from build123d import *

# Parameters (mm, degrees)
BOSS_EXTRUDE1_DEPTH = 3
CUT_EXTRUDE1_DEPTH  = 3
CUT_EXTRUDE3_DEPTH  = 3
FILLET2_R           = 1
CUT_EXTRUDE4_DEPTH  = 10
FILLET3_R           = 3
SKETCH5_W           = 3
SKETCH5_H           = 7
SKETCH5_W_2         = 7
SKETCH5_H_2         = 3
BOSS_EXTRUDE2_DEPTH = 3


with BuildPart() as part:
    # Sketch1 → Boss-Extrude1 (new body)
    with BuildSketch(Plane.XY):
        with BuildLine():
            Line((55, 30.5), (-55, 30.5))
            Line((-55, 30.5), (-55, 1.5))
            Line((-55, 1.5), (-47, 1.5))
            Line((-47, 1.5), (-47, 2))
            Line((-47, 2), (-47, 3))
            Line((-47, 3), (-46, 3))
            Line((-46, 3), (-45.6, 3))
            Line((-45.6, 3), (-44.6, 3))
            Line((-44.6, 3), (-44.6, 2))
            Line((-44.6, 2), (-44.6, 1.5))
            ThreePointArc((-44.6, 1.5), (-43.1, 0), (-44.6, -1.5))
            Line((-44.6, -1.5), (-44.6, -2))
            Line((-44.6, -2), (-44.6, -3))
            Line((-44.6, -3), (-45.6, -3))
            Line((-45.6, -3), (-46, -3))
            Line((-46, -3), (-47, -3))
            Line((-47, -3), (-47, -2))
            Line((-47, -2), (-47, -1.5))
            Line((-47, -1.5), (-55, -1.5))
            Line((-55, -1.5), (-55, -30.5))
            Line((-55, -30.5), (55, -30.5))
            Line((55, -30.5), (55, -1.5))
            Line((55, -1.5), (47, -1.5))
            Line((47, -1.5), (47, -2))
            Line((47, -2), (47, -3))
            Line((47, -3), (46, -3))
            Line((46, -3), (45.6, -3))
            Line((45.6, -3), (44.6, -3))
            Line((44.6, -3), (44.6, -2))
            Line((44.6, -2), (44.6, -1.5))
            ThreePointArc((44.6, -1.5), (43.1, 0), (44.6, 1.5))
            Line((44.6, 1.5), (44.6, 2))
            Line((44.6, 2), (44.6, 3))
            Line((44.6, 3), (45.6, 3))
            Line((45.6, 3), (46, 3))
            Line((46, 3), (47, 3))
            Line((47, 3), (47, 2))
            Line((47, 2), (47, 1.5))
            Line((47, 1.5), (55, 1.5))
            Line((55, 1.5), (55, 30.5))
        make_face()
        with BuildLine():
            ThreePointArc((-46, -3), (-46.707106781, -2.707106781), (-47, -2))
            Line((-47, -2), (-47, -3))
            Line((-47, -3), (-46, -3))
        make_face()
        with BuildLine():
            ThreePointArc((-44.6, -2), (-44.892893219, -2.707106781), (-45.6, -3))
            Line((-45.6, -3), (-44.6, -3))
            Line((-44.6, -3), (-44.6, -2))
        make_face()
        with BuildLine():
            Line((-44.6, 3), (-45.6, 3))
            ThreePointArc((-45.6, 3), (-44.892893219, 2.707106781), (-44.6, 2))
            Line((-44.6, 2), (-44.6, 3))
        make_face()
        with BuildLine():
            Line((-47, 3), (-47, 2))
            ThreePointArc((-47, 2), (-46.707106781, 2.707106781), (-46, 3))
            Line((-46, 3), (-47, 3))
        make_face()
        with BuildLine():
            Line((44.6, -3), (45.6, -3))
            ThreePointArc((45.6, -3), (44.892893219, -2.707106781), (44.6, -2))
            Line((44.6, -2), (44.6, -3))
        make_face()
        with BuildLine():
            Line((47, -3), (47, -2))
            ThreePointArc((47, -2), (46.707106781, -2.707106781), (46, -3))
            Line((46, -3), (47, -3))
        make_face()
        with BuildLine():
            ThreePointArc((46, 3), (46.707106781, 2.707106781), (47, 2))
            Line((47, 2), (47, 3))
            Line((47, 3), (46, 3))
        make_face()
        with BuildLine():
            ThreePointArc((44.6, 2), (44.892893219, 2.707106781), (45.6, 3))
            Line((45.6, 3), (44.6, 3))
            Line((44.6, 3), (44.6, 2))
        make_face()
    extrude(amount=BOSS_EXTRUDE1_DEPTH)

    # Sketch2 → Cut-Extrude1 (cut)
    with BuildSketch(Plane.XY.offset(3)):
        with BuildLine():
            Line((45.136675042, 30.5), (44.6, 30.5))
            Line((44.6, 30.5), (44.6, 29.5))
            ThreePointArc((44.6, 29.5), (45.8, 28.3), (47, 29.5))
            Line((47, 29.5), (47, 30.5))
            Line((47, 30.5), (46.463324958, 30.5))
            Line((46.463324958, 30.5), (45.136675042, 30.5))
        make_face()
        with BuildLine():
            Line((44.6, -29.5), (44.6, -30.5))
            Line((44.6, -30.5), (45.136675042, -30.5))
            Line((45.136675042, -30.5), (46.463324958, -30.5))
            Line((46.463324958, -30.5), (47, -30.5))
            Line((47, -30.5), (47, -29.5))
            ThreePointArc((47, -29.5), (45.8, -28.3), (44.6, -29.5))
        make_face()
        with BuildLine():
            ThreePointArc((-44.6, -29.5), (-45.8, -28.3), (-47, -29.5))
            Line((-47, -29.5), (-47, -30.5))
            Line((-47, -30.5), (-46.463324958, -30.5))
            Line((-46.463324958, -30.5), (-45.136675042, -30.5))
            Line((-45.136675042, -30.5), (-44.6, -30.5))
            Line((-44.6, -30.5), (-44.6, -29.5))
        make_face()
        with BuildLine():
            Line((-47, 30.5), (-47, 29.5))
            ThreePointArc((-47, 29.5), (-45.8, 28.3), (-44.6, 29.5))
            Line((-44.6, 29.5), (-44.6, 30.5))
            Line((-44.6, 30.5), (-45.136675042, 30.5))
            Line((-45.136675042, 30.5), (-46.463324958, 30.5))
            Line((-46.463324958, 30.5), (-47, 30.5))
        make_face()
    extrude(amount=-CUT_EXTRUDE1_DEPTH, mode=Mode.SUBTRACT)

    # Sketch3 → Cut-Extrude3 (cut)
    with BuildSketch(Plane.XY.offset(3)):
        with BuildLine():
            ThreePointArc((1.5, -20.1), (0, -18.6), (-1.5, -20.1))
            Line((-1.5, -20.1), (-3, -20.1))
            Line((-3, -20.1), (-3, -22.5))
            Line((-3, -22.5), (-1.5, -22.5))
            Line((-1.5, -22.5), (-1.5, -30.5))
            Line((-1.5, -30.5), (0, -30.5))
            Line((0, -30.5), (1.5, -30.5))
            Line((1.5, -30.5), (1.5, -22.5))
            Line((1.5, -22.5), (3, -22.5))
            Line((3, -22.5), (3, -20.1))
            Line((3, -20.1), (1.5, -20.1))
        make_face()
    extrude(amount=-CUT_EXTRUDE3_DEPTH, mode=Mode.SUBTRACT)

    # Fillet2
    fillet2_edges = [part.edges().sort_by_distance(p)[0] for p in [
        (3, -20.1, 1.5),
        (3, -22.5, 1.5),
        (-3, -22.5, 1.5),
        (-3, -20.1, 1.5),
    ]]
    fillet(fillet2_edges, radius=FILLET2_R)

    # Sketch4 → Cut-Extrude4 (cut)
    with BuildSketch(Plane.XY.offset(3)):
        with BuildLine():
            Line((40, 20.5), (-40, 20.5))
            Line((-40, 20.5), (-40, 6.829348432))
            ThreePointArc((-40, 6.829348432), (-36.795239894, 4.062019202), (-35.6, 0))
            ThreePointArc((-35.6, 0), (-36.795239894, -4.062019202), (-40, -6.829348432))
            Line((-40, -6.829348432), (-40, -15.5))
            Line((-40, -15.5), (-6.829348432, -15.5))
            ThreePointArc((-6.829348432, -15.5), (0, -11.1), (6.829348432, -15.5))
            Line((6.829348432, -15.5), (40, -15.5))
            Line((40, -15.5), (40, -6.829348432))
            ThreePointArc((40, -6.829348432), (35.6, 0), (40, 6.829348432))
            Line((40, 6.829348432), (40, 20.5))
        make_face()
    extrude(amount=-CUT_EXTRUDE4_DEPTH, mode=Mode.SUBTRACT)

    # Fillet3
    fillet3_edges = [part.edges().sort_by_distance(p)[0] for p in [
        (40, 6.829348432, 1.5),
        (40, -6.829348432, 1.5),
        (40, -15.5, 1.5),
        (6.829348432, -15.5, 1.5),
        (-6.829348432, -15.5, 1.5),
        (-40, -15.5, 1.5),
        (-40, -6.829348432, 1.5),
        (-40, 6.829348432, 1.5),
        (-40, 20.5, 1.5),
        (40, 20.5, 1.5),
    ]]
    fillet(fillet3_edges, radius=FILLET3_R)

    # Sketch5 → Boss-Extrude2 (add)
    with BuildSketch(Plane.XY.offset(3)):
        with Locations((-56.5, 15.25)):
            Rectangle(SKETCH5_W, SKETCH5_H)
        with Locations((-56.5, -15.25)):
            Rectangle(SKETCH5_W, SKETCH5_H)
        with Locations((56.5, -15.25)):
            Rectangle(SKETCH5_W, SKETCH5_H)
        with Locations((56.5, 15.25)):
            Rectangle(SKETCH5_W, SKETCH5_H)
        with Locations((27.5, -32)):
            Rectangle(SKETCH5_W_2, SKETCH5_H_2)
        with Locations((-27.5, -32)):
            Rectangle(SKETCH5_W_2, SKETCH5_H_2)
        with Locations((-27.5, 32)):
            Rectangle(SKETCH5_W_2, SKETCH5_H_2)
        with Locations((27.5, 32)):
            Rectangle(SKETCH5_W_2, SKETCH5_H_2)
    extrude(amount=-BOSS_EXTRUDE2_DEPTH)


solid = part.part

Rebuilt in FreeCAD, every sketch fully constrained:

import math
import FreeCAD as App
import Part
import Sketcher
from FreeCAD import Vector


def edges_at(feature, points):
    """Names of the edges that pass closest to the given points."""
    edges = feature.Shape.Edges
    near = lambda p: min(range(len(edges)), key=lambda i: edges[i].distToShape(Part.Vertex(*p))[0])
    return sorted({f"Edge{near(p) + 1}" for p in points})


def add_polygon(sketch, points):
    """Adds a closed chain of lines whose ends are joined by coincident constraints."""
    first, n = sketch.GeometryCount, len(points)
    for a, b in zip(points, points[1:] + points[:1]):
        sketch.addGeometry(Part.LineSegment(App.Vector(*a, 0), App.Vector(*b, 0)), False)
    for i in range(n):
        sketch.addConstraint(Sketcher.Constraint("Coincident", first + i, 2, first + (i + 1) % n, 1))

doc = App.newDocument("Part")
params = doc.addObject("Spreadsheet::Sheet", "Params")
for row, (alias, value) in enumerate([
    ("sketch1_radius", "1 mm"),
    ("sketch1_radius2", "1.5 mm"),
    ("sketch1_width", "110 mm"),
    ("sketch1_width2", "8 mm"),
    ("sketch1_height", "29 mm"),
    ("pad1_length", "3 mm"),
    ("sketch2_radius", "1.2 mm"),
    ("sketch2_height", "1 mm"),
    ("pocket1_length", "3 mm"),
    ("sketch3_radius", "1.5 mm"),
    ("sketch3_height", "8 mm"),
    ("sketch3_width", "1.5 mm"),
    ("sketch3_height2", "2.4 mm"),
    ("pocket2_length", "3 mm"),
    ("fillet_radius", "1 mm"),
    ("sketch4_radius", "7.5 mm"),
    ("sketch4_width", "80 mm"),
    ("pocket3_length", "10 mm"),
    ("fillet2_radius", "3 mm"),
    ("sketch5_width", "3 mm"),
    ("sketch5_width2", "7 mm"),
    ("pad2_length", "3 mm"),
], start=1):
    params.set(f"A{row}", alias)
    params.set(f"B{row}", "=" + value)
    params.setAlias(f"B{row}", alias)

body = doc.addObject("PartDesign::Body", "Body")

sketch1 = body.newObject("Sketcher::SketchObject", "Sketch")
sketch1.AttachmentSupport = (doc.getObject("XY_Plane"), [""])
sketch1.MapMode = "FlatFace"
sketch1.addGeometry([
    Part.LineSegment(Vector(55, 30.5, 0), Vector(-55, 30.5, 0)),
    Part.LineSegment(Vector(-55, 30.5, 0), Vector(-55, 1.5, 0)),
    Part.LineSegment(Vector(-55, 1.5, 0), Vector(-47, 1.5, 0)),
    Part.LineSegment(Vector(-47, 1.5, 0), Vector(-47, 2, 0)),
    Part.ArcOfCircle(Part.Circle(Vector(-46, 2, 0), Vector(0, 0, 1), 1), math.radians(90), math.radians(180)),
    Part.LineSegment(Vector(-46, 3, 0), Vector(-45.6, 3, 0)),
    Part.ArcOfCircle(Part.Circle(Vector(-45.6, 2, 0), Vector(0, 0, 1), 1), math.radians(0), math.radians(90)),
    Part.LineSegment(Vector(-44.6, 2, 0), Vector(-44.6, 1.5, 0)),
    Part.ArcOfCircle(Part.Circle(Vector(-44.6, 0, 0), Vector(0, 0, 1), 1.5), math.radians(-90), math.radians(90)),
    Part.LineSegment(Vector(-44.6, -1.5, 0), Vector(-44.6, -2, 0)),
    Part.ArcOfCircle(Part.Circle(Vector(-45.6, -2, 0), Vector(0, 0, 1), 1), math.radians(-90), math.radians(0)),
    Part.LineSegment(Vector(-45.6, -3, 0), Vector(-46, -3, 0)),
    Part.ArcOfCircle(Part.Circle(Vector(-46, -2, 0), Vector(0, 0, 1), 1), math.radians(-180), math.radians(-90)),
    Part.LineSegment(Vector(-47, -2, 0), Vector(-47, -1.5, 0)),
    Part.LineSegment(Vector(-47, -1.5, 0), Vector(-55, -1.5, 0)),
    Part.LineSegment(Vector(-55, -1.5, 0), Vector(-55, -30.5, 0)),
    Part.LineSegment(Vector(-55, -30.5, 0), Vector(55, -30.5, 0)),
    Part.LineSegment(Vector(55, -30.5, 0), Vector(55, -1.5, 0)),
    Part.LineSegment(Vector(55, -1.5, 0), Vector(47, -1.5, 0)),
    Part.LineSegment(Vector(47, -1.5, 0), Vector(47, -2, 0)),
    Part.ArcOfCircle(Part.Circle(Vector(46, -2, 0), Vector(0, 0, 1), 1), math.radians(-90), math.radians(0)),
    Part.LineSegment(Vector(46, -3, 0), Vector(45.6, -3, 0)),
    Part.ArcOfCircle(Part.Circle(Vector(45.6, -2, 0), Vector(0, 0, 1), 1), math.radians(-180), math.radians(-90)),
    Part.LineSegment(Vector(44.6, -2, 0), Vector(44.6, -1.5, 0)),
    Part.ArcOfCircle(Part.Circle(Vector(44.6, 0, 0), Vector(0, 0, 1), 1.5), math.radians(90), math.radians(270)),
    Part.LineSegment(Vector(44.6, 1.5, 0), Vector(44.6, 2, 0)),
    Part.ArcOfCircle(Part.Circle(Vector(45.6, 2, 0), Vector(0, 0, 1), 1), math.radians(90), math.radians(180)),
    Part.LineSegment(Vector(45.6, 3, 0), Vector(46, 3, 0)),
    Part.ArcOfCircle(Part.Circle(Vector(46, 2, 0), Vector(0, 0, 1), 1), math.radians(0), math.radians(90)),
    Part.LineSegment(Vector(47, 2, 0), Vector(47, 1.5, 0)),
    Part.LineSegment(Vector(47, 1.5, 0), Vector(55, 1.5, 0)),
    Part.LineSegment(Vector(55, 1.5, 0), Vector(55, 30.5, 0)),
], False)
sketch1.addConstraint([
    Sketcher.Constraint("Coincident", 0, 2, 1, 1),
    Sketcher.Constraint("Coincident", 1, 2, 2, 1),
    Sketcher.Constraint("Coincident", 2, 2, 3, 1),
    Sketcher.Constraint("Tangent", 3, 2, 4, 2),
    Sketcher.Constraint("Tangent", 4, 1, 5, 1),
    Sketcher.Constraint("Tangent", 5, 2, 6, 2),
    Sketcher.Constraint("Tangent", 6, 1, 7, 1),
    Sketcher.Constraint("Coincident", 7, 2, 8, 2),
    Sketcher.Constraint("Coincident", 8, 1, 9, 1),
    Sketcher.Constraint("Tangent", 9, 2, 10, 2),
    Sketcher.Constraint("Tangent", 10, 1, 11, 1),
    Sketcher.Constraint("Tangent", 11, 2, 12, 2),
    Sketcher.Constraint("Tangent", 12, 1, 13, 1),
    Sketcher.Constraint("Coincident", 13, 2, 14, 1),
    Sketcher.Constraint("Coincident", 14, 2, 15, 1),
    Sketcher.Constraint("Coincident", 15, 2, 16, 1),
    Sketcher.Constraint("Coincident", 16, 2, 17, 1),
    Sketcher.Constraint("Coincident", 17, 2, 18, 1),
    Sketcher.Constraint("Coincident", 18, 2, 19, 1),
    Sketcher.Constraint("Tangent", 19, 2, 20, 2),
    Sketcher.Constraint("Tangent", 20, 1, 21, 1),
    Sketcher.Constraint("Tangent", 21, 2, 22, 2),
    Sketcher.Constraint("Tangent", 22, 1, 23, 1),
    Sketcher.Constraint("Coincident", 23, 2, 24, 2),
    Sketcher.Constraint("Coincident", 24, 1, 25, 1),
    Sketcher.Constraint("Tangent", 25, 2, 26, 2),
    Sketcher.Constraint("Tangent", 26, 1, 27, 1),
    Sketcher.Constraint("Tangent", 27, 2, 28, 2),
    Sketcher.Constraint("Tangent", 28, 1, 29, 1),
    Sketcher.Constraint("Coincident", 29, 2, 30, 1),
    Sketcher.Constraint("Coincident", 30, 2, 31, 1),
    Sketcher.Constraint("Coincident", 31, 2, 0, 1),
    Sketcher.Constraint("Horizontal", 0),
    Sketcher.Constraint("Vertical", 1),
    Sketcher.Constraint("Horizontal", 2),
    Sketcher.Constraint("Vertical", 3),
    Sketcher.Constraint("Horizontal", 5),
    Sketcher.Constraint("Vertical", 7),
    Sketcher.Constraint("Vertical", 9),
    Sketcher.Constraint("Horizontal", 11),
    Sketcher.Constraint("Vertical", 13),
    Sketcher.Constraint("Horizontal", 14),
    Sketcher.Constraint("Vertical", 15),
    Sketcher.Constraint("Horizontal", 16),
    Sketcher.Constraint("Vertical", 17),
    Sketcher.Constraint("Horizontal", 18),
    Sketcher.Constraint("Vertical", 19),
    Sketcher.Constraint("Horizontal", 21),
    Sketcher.Constraint("Vertical", 23),
    Sketcher.Constraint("Vertical", 25),
    Sketcher.Constraint("Horizontal", 27),
    Sketcher.Constraint("Vertical", 29),
    Sketcher.Constraint("Horizontal", 30),
    Sketcher.Constraint("Vertical", 31),
    Sketcher.Constraint("Equal", 4, 6),
    Sketcher.Constraint("Equal", 6, 10),
    Sketcher.Constraint("Equal", 10, 12),
    Sketcher.Constraint("Equal", 12, 20),
    Sketcher.Constraint("Equal", 20, 22),
    Sketcher.Constraint("Equal", 8, 24),
    Sketcher.Constraint("Equal", 22, 26),
    Sketcher.Constraint("Equal", 26, 28),
    Sketcher.Constraint("Symmetric", 4, 3, 20, 3, -1, 1),
    Sketcher.Constraint("Symmetric", 8, 3, 24, 3, -1, 1),
    Sketcher.Constraint("Symmetric", 10, 3, 26, 3, -1, 1),
    Sketcher.Constraint("Symmetric", 0, 2, 16, 2, -1, 1),
    Sketcher.Constraint("Symmetric", 13, 2, 29, 2, -1, 1),
    Sketcher.Constraint("Symmetric", 12, 3, 20, 3, -2),
    Sketcher.Constraint("Symmetric", 14, 2, 17, 2, -2),
    Sketcher.Constraint("Symmetric", 8, 1, 23, 2, -2),
    Sketcher.Constraint("Symmetric", 1, 2, 30, 2, -2),
    Sketcher.Constraint("Horizontal", 2, 2, 7, 2),
    Sketcher.Constraint("Vertical", 6, 3, 10, 3),
    Sketcher.Constraint("Vertical", 8, 3, 6, 1),
    Sketcher.Constraint("Radius", 4, 1.0),
    Sketcher.Constraint("Radius", 8, 1.5),
    Sketcher.Constraint("DistanceX", 0, 2, 0, 1, 110.0),
    Sketcher.Constraint("DistanceX", 2, 1, 2, 2, 8.0),
    Sketcher.Constraint("DistanceY", 1, 2, 1, 1, 29.0),
    Sketcher.Constraint("DistanceX", 5, 1, 5, 2, 0.4),
    Sketcher.Constraint("DistanceY", 3, 1, 3, 2, 0.5),
])
sketch1.setExpression("Constraints[74]", "Params.sketch1_radius")
sketch1.setExpression("Constraints[75]", "Params.sketch1_radius2")
sketch1.setExpression("Constraints[76]", "Params.sketch1_width")
sketch1.setExpression("Constraints[77]", "Params.sketch1_width2")
sketch1.setExpression("Constraints[78]", "Params.sketch1_height")
pad1 = body.newObject("PartDesign::Pad", "Pad")
pad1.Profile = sketch1
pad1.setExpression("Length", "Params.pad1_length")

sketch2 = body.newObject("Sketcher::SketchObject", "Sketch001")
sketch2.AttachmentSupport = (doc.getObject("XY_Plane"), [""])
sketch2.MapMode = "FlatFace"
sketch2.AttachmentOffset = App.Placement(Vector(0, 0, 3), App.Rotation())
sketch2.addGeometry([
    Part.LineSegment(Vector(44.6, 30.5, 0), Vector(44.6, 29.5, 0)),
    Part.ArcOfCircle(Part.Circle(Vector(45.8, 29.5, 0), Vector(0, 0, 1), 1.2), math.radians(180), math.radians(360)),
    Part.LineSegment(Vector(47, 29.5, 0), Vector(47, 30.5, 0)),
    Part.LineSegment(Vector(47, 30.5, 0), Vector(44.6, 30.5, 0)),
    Part.LineSegment(Vector(44.6, -29.5, 0), Vector(44.6, -30.5, 0)),
    Part.LineSegment(Vector(44.6, -30.5, 0), Vector(47, -30.5, 0)),
    Part.LineSegment(Vector(47, -30.5, 0), Vector(47, -29.5, 0)),
    Part.ArcOfCircle(Part.Circle(Vector(45.8, -29.5, 0), Vector(0, 0, 1), 1.2), math.radians(0), math.radians(180)),
    Part.ArcOfCircle(Part.Circle(Vector(-45.8, -29.5, 0), Vector(0, 0, 1), 1.2), math.radians(0), math.radians(180)),
    Part.LineSegment(Vector(-47, -29.5, 0), Vector(-47, -30.5, 0)),
    Part.LineSegment(Vector(-47, -30.5, 0), Vector(-44.6, -30.5, 0)),
    Part.LineSegment(Vector(-44.6, -30.5, 0), Vector(-44.6, -29.5, 0)),
    Part.LineSegment(Vector(-47, 30.5, 0), Vector(-47, 29.5, 0)),
    Part.ArcOfCircle(Part.Circle(Vector(-45.8, 29.5, 0), Vector(0, 0, 1), 1.2), math.radians(180), math.radians(360)),
    Part.LineSegment(Vector(-44.6, 29.5, 0), Vector(-44.6, 30.5, 0)),
    Part.LineSegment(Vector(-44.6, 30.5, 0), Vector(-47, 30.5, 0)),
], False)
sketch2.addConstraint([
    Sketcher.Constraint("Tangent", 0, 2, 1, 1),
    Sketcher.Constraint("Tangent", 1, 2, 2, 1),
    Sketcher.Constraint("Coincident", 2, 2, 3, 1),
    Sketcher.Constraint("Coincident", 3, 2, 0, 1),
    Sketcher.Constraint("Coincident", 4, 2, 5, 1),
    Sketcher.Constraint("Coincident", 5, 2, 6, 1),
    Sketcher.Constraint("Tangent", 6, 2, 7, 1),
    Sketcher.Constraint("Tangent", 7, 2, 4, 1),
    Sketcher.Constraint("Tangent", 8, 2, 9, 1),
    Sketcher.Constraint("Coincident", 9, 2, 10, 1),
    Sketcher.Constraint("Coincident", 10, 2, 11, 1),
    Sketcher.Constraint("Tangent", 11, 2, 8, 1),
    Sketcher.Constraint("Tangent", 12, 2, 13, 1),
    Sketcher.Constraint("Tangent", 13, 2, 14, 1),
    Sketcher.Constraint("Coincident", 14, 2, 15, 1),
    Sketcher.Constraint("Coincident", 15, 2, 12, 1),
    Sketcher.Constraint("Vertical", 0),
    Sketcher.Constraint("Vertical", 2),
    Sketcher.Constraint("Horizontal", 3),
    Sketcher.Constraint("Vertical", 4),
    Sketcher.Constraint("Horizontal", 5),
    Sketcher.Constraint("Vertical", 6),
    Sketcher.Constraint("Vertical", 9),
    Sketcher.Constraint("Horizontal", 10),
    Sketcher.Constraint("Vertical", 11),
    Sketcher.Constraint("Vertical", 12),
    Sketcher.Constraint("Vertical", 14),
    Sketcher.Constraint("Horizontal", 15),
    Sketcher.Constraint("Equal", 1, 7),
    Sketcher.Constraint("Equal", 7, 8),
    Sketcher.Constraint("Equal", 8, 13),
    Sketcher.Constraint("Symmetric", 1, 3, 8, 3, -1, 1),
    Sketcher.Constraint("Symmetric", 7, 3, 13, 3, -1, 1),
    Sketcher.Constraint("Symmetric", 7, 3, 8, 3, -2),
    Sketcher.Constraint("Horizontal", 5, 2, 9, 2),
    Sketcher.Constraint("Horizontal", 3, 2, 14, 2),
    Sketcher.Constraint("Equal", 2, 4),
    Sketcher.Constraint("Radius", 1, 1.2),
    Sketcher.Constraint("DistanceY", 0, 2, 0, 1, 1.0),
    Sketcher.Constraint("DistanceX", -1, 1, 1, 2, 47.0),
    Sketcher.Constraint("DistanceY", 7, 3, 1, 3, 59.0),
])
sketch2.setExpression("Constraints[37]", "Params.sketch2_radius")
sketch2.setExpression("Constraints[38]", "Params.sketch2_height")
pocket1 = body.newObject("PartDesign::Pocket", "Pocket")
pocket1.Profile = sketch2
pocket1.setExpression("Length", "Params.pocket1_length")

sketch3 = body.newObject("Sketcher::SketchObject", "Sketch002")
sketch3.AttachmentSupport = (doc.getObject("XY_Plane"), [""])
sketch3.MapMode = "FlatFace"
sketch3.AttachmentOffset = App.Placement(Vector(0, 0, 3), App.Rotation())
sketch3.addGeometry([
    Part.ArcOfCircle(Part.Circle(Vector(0, -20.1, 0), Vector(0, 0, 1), 1.5), math.radians(0), math.radians(180)),
    Part.LineSegment(Vector(-1.5, -20.1, 0), Vector(-3, -20.1, 0)),
    Part.LineSegment(Vector(-3, -20.1, 0), Vector(-3, -22.5, 0)),
    Part.LineSegment(Vector(-3, -22.5, 0), Vector(-1.5, -22.5, 0)),
    Part.LineSegment(Vector(-1.5, -22.5, 0), Vector(-1.5, -30.5, 0)),
    Part.LineSegment(Vector(-1.5, -30.5, 0), Vector(1.5, -30.5, 0)),
    Part.LineSegment(Vector(1.5, -30.5, 0), Vector(1.5, -22.5, 0)),
    Part.LineSegment(Vector(1.5, -22.5, 0), Vector(3, -22.5, 0)),
    Part.LineSegment(Vector(3, -22.5, 0), Vector(3, -20.1, 0)),
    Part.LineSegment(Vector(3, -20.1, 0), Vector(1.5, -20.1, 0)),
], False)
sketch3.addConstraint([
    Sketcher.Constraint("Coincident", 0, 2, 1, 1),
    Sketcher.Constraint("Coincident", 1, 2, 2, 1),
    Sketcher.Constraint("Coincident", 2, 2, 3, 1),
    Sketcher.Constraint("Coincident", 3, 2, 4, 1),
    Sketcher.Constraint("Coincident", 4, 2, 5, 1),
    Sketcher.Constraint("Coincident", 5, 2, 6, 1),
    Sketcher.Constraint("Coincident", 6, 2, 7, 1),
    Sketcher.Constraint("Coincident", 7, 2, 8, 1),
    Sketcher.Constraint("Coincident", 8, 2, 9, 1),
    Sketcher.Constraint("Coincident", 9, 2, 0, 1),
    Sketcher.Constraint("Horizontal", 1),
    Sketcher.Constraint("Vertical", 2),
    Sketcher.Constraint("Horizontal", 3),
    Sketcher.Constraint("Vertical", 4),
    Sketcher.Constraint("Horizontal", 5),
    Sketcher.Constraint("Vertical", 6),
    Sketcher.Constraint("Horizontal", 7),
    Sketcher.Constraint("Vertical", 8),
    Sketcher.Constraint("Horizontal", 9),
    Sketcher.Constraint("Symmetric", 3, 2, 6, 2, -2),
    Sketcher.Constraint("Symmetric", 1, 2, 8, 2, -2),
    Sketcher.Constraint("PointOnObject", 0, 3, -2),
    Sketcher.Constraint("Vertical", 0, 2, 3, 2),
    Sketcher.Constraint("Radius", 0, 1.5),
    Sketcher.Constraint("DistanceY", 4, 2, 4, 1, 8.0),
    Sketcher.Constraint("DistanceX", 1, 2, 1, 1, 1.5),
    Sketcher.Constraint("DistanceY", 2, 2, 2, 1, 2.4),
    Sketcher.Constraint("DistanceY", 0, 3, -1, 1, 20.1),
    Sketcher.Constraint("DistanceY", 0, 2, -1, 1, 20.1),
])
sketch3.setExpression("Constraints[23]", "Params.sketch3_radius")
sketch3.setExpression("Constraints[24]", "Params.sketch3_height")
sketch3.setExpression("Constraints[25]", "Params.sketch3_width")
sketch3.setExpression("Constraints[26]", "Params.sketch3_height2")
pocket2 = body.newObject("PartDesign::Pocket", "Pocket001")
pocket2.Profile = sketch3
pocket2.setExpression("Length", "Params.pocket2_length")
doc.recompute()

fillet = body.newObject("PartDesign::Fillet", "Fillet")
fillet.Base = (pocket2, edges_at(pocket2, [
    (3, -20.1, 1.5),
    (3, -22.5, 1.5),
    (-3, -22.5, 1.5),
    (-3, -20.1, 1.5),
]))
fillet.setExpression("Radius", "Params.fillet_radius")

sketch4 = body.newObject("Sketcher::SketchObject", "Sketch003")
sketch4.AttachmentSupport = (doc.getObject("XY_Plane"), [""])
sketch4.MapMode = "FlatFace"
sketch4.AttachmentOffset = App.Placement(Vector(0, 0, 3), App.Rotation())
sketch4.addGeometry([
    Part.LineSegment(Vector(40, 20, 0), Vector(-40, 20, 0)),
    Part.LineSegment(Vector(-40, 20, 0), Vector(-40, 7, 0)),
    Part.ArcOfCircle(Part.Circle(Vector(-43, 0, 0), Vector(0, 0, 1), 8), math.radians(0), math.radians(66)),
    Part.ArcOfCircle(Part.Circle(Vector(-43, 0, 0), Vector(0, 0, 1), 8), math.radians(-66), math.radians(0)),
    Part.LineSegment(Vector(-40, -7, 0), Vector(-40, -16, 0)),
    Part.LineSegment(Vector(-40, -16, 0), Vector(-7, -16, 0)),
    Part.ArcOfCircle(Part.Circle(Vector(0, -19, 0), Vector(0, 0, 1), 8), math.radians(24), math.radians(156)),
    Part.LineSegment(Vector(7, -16, 0), Vector(40, -16, 0)),
    Part.LineSegment(Vector(40, -16, 0), Vector(40, -7, 0)),
    Part.ArcOfCircle(Part.Circle(Vector(43, 0, 0), Vector(0, 0, 1), 8), math.radians(114), math.radians(246)),
    Part.LineSegment(Vector(40, 7, 0), Vector(40, 20, 0)),
], False)
sketch4.addConstraint([
    Sketcher.Constraint("Coincident", 0, 2, 1, 1),
    Sketcher.Constraint("Coincident", 1, 2, 2, 2),
    Sketcher.Constraint("Tangent", 2, 1, 3, 2),
    Sketcher.Constraint("Coincident", 3, 1, 4, 1),
    Sketcher.Constraint("Coincident", 4, 2, 5, 1),
    Sketcher.Constraint("Coincident", 5, 2, 6, 2),
    Sketcher.Constraint("Coincident", 6, 1, 7, 1),
    Sketcher.Constraint("Coincident", 7, 2, 8, 1),
    Sketcher.Constraint("Coincident", 8, 2, 9, 2),
    Sketcher.Constraint("Coincident", 9, 1, 10, 1),
    Sketcher.Constraint("Coincident", 10, 2, 0, 1),
    Sketcher.Constraint("Horizontal", 0),
    Sketcher.Constraint("Vertical", 1),
    Sketcher.Constraint("Vertical", 4),
    Sketcher.Constraint("Horizontal", 5),
    Sketcher.Constraint("Horizontal", 7),
    Sketcher.Constraint("Vertical", 8),
    Sketcher.Constraint("Vertical", 10),
    Sketcher.Constraint("Equal", 2, 3),
    Sketcher.Constraint("Equal", 3, 6),
    Sketcher.Constraint("Equal", 6, 9),
    Sketcher.Constraint("Symmetric", 2, 3, 9, 3, -1, 1),
    Sketcher.Constraint("Symmetric", 5, 2, 6, 1, -2),
    Sketcher.Constraint("Symmetric", 3, 1, 8, 2, -2),
    Sketcher.Constraint("PointOnObject", 2, 1, -1),
    Sketcher.Constraint("Horizontal", 1, 2, 9, 1),
    Sketcher.Constraint("Vertical", 1, 2, 3, 1),
    Sketcher.Constraint("Radius", 2, 7.5),
    Sketcher.Constraint("DistanceX", 0, 2, 0, 1, 80.0),
    Sketcher.Constraint("DistanceY", 7, 2, 10, 2, 36.0),
    Sketcher.Constraint("DistanceX", 2, 3, -1, 1, 43.1),
    Sketcher.Constraint("DistanceY", 6, 3, -1, 1, 18.6),
    Sketcher.Constraint("DistanceY", -1, 1, 0, 2, 20.5),
])
sketch4.setExpression("Constraints[27]", "Params.sketch4_radius")
sketch4.setExpression("Constraints[28]", "Params.sketch4_width")
pocket3 = body.newObject("PartDesign::Pocket", "Pocket002")
pocket3.Profile = sketch4
pocket3.setExpression("Length", "Params.pocket3_length")
doc.recompute()

fillet2 = body.newObject("PartDesign::Fillet", "Fillet001")
fillet2.Base = (pocket3, edges_at(pocket3, [
    (40, 6.829, 1.5),
    (40, -6.829, 1.5),
    (40, -15.5, 1.5),
    (6.829, -15.5, 1.5),
    (-6.829, -15.5, 1.5),
    (-40, -15.5, 1.5),
    (-40, -6.829, 1.5),
    (-40, 6.829, 1.5),
    (-40, 20.5, 1.5),
    (40, 20.5, 1.5),
]))
fillet2.setExpression("Radius", "Params.fillet2_radius")

sketch5 = body.newObject("Sketcher::SketchObject", "Sketch004")
sketch5.AttachmentSupport = (doc.getObject("XY_Plane"), [""])
sketch5.MapMode = "FlatFace"
sketch5.AttachmentOffset = App.Placement(Vector(0, 0, 3), App.Rotation())
add_polygon(sketch5, [(-58, 18.8), (-58, 11.8), (-55, 11.8), (-55, 18.8)])
add_polygon(sketch5, [(-58, -11.8), (-58, -18.8), (-55, -18.8), (-55, -11.8)])
add_polygon(sketch5, [(55, -11.8), (55, -18.8), (58, -18.8), (58, -11.8)])
add_polygon(sketch5, [(55, 18.8), (55, 11.8), (58, 11.8), (58, 18.8)])
add_polygon(sketch5, [(24, -30.5), (24, -33.5), (31, -33.5), (31, -30.5)])
add_polygon(sketch5, [(-31, -30.5), (-31, -33.5), (-24, -33.5), (-24, -30.5)])
add_polygon(sketch5, [(-31, 33.5), (-31, 30.5), (-24, 30.5), (-24, 33.5)])
add_polygon(sketch5, [(24, 33.5), (24, 30.5), (31, 30.5), (31, 33.5)])
sketch5.addConstraint([
    Sketcher.Constraint("Vertical", 0),
    Sketcher.Constraint("Horizontal", 1),
    Sketcher.Constraint("Vertical", 2),
    Sketcher.Constraint("Horizontal", 3),
    Sketcher.Constraint("Vertical", 4),
    Sketcher.Constraint("Horizontal", 5),
    Sketcher.Constraint("Vertical", 6),
    Sketcher.Constraint("Horizontal", 7),
    Sketcher.Constraint("Vertical", 8),
    Sketcher.Constraint("Horizontal", 9),
    Sketcher.Constraint("Vertical", 10),
    Sketcher.Constraint("Horizontal", 11),
    Sketcher.Constraint("Vertical", 12),
    Sketcher.Constraint("Horizontal", 13),
    Sketcher.Constraint("Vertical", 14),
    Sketcher.Constraint("Horizontal", 15),
    Sketcher.Constraint("Vertical", 16),
    Sketcher.Constraint("Horizontal", 17),
    Sketcher.Constraint("Vertical", 18),
    Sketcher.Constraint("Horizontal", 19),
    Sketcher.Constraint("Vertical", 20),
    Sketcher.Constraint("Horizontal", 21),
    Sketcher.Constraint("Vertical", 22),
    Sketcher.Constraint("Horizontal", 23),
    Sketcher.Constraint("Vertical", 24),
    Sketcher.Constraint("Horizontal", 25),
    Sketcher.Constraint("Vertical", 26),
    Sketcher.Constraint("Horizontal", 27),
    Sketcher.Constraint("Vertical", 28),
    Sketcher.Constraint("Horizontal", 29),
    Sketcher.Constraint("Vertical", 30),
    Sketcher.Constraint("Horizontal", 31),
    Sketcher.Constraint("Symmetric", 2, 2, 8, 2, -1, 1),
    Sketcher.Constraint("Symmetric", 0, 2, 10, 2, -1, 1),
    Sketcher.Constraint("Symmetric", 6, 2, 12, 2, -1, 1),
    Sketcher.Constraint("Symmetric", 4, 2, 14, 2, -1, 1),
    Sketcher.Constraint("Symmetric", 18, 2, 24, 2, -1, 1),
    Sketcher.Constraint("Symmetric", 16, 2, 26, 2, -1, 1),
    Sketcher.Constraint("Symmetric", 22, 2, 28, 2, -1, 1),
    Sketcher.Constraint("Symmetric", 20, 2, 30, 2, -1, 1),
    Sketcher.Constraint("Symmetric", 5, 2, 8, 2, -2),
    Sketcher.Constraint("Symmetric", 7, 2, 10, 2, -2),
    Sketcher.Constraint("Symmetric", 17, 2, 20, 2, -2),
    Sketcher.Constraint("Symmetric", 19, 2, 22, 2, -2),
    Sketcher.Constraint("Equal", 31, 0),
    Sketcher.Constraint("Equal", 15, 16),
    Sketcher.Constraint("DistanceX", 1, 1, 1, 2, 3.0),
    Sketcher.Constraint("DistanceX", 17, 1, 17, 2, 7.0),
    Sketcher.Constraint("DistanceX", 0, 2, -1, 1, 58.0),
    Sketcher.Constraint("DistanceX", -1, 1, 16, 2, 24.0),
    Sketcher.Constraint("DistanceY", 16, 2, -1, 1, 33.5),
    Sketcher.Constraint("DistanceY", 4, 2, 0, 2, 30.5),
])
sketch5.setExpression("Constraints[78]", "Params.sketch5_width")
sketch5.setExpression("Constraints[79]", "Params.sketch5_width2")
pad2 = body.newObject("PartDesign::Pad", "Pad001")
pad2.Profile = sketch5
pad2.setExpression("Length", "Params.pad2_length")
pad2.Reversed = True

doc.recompute()
